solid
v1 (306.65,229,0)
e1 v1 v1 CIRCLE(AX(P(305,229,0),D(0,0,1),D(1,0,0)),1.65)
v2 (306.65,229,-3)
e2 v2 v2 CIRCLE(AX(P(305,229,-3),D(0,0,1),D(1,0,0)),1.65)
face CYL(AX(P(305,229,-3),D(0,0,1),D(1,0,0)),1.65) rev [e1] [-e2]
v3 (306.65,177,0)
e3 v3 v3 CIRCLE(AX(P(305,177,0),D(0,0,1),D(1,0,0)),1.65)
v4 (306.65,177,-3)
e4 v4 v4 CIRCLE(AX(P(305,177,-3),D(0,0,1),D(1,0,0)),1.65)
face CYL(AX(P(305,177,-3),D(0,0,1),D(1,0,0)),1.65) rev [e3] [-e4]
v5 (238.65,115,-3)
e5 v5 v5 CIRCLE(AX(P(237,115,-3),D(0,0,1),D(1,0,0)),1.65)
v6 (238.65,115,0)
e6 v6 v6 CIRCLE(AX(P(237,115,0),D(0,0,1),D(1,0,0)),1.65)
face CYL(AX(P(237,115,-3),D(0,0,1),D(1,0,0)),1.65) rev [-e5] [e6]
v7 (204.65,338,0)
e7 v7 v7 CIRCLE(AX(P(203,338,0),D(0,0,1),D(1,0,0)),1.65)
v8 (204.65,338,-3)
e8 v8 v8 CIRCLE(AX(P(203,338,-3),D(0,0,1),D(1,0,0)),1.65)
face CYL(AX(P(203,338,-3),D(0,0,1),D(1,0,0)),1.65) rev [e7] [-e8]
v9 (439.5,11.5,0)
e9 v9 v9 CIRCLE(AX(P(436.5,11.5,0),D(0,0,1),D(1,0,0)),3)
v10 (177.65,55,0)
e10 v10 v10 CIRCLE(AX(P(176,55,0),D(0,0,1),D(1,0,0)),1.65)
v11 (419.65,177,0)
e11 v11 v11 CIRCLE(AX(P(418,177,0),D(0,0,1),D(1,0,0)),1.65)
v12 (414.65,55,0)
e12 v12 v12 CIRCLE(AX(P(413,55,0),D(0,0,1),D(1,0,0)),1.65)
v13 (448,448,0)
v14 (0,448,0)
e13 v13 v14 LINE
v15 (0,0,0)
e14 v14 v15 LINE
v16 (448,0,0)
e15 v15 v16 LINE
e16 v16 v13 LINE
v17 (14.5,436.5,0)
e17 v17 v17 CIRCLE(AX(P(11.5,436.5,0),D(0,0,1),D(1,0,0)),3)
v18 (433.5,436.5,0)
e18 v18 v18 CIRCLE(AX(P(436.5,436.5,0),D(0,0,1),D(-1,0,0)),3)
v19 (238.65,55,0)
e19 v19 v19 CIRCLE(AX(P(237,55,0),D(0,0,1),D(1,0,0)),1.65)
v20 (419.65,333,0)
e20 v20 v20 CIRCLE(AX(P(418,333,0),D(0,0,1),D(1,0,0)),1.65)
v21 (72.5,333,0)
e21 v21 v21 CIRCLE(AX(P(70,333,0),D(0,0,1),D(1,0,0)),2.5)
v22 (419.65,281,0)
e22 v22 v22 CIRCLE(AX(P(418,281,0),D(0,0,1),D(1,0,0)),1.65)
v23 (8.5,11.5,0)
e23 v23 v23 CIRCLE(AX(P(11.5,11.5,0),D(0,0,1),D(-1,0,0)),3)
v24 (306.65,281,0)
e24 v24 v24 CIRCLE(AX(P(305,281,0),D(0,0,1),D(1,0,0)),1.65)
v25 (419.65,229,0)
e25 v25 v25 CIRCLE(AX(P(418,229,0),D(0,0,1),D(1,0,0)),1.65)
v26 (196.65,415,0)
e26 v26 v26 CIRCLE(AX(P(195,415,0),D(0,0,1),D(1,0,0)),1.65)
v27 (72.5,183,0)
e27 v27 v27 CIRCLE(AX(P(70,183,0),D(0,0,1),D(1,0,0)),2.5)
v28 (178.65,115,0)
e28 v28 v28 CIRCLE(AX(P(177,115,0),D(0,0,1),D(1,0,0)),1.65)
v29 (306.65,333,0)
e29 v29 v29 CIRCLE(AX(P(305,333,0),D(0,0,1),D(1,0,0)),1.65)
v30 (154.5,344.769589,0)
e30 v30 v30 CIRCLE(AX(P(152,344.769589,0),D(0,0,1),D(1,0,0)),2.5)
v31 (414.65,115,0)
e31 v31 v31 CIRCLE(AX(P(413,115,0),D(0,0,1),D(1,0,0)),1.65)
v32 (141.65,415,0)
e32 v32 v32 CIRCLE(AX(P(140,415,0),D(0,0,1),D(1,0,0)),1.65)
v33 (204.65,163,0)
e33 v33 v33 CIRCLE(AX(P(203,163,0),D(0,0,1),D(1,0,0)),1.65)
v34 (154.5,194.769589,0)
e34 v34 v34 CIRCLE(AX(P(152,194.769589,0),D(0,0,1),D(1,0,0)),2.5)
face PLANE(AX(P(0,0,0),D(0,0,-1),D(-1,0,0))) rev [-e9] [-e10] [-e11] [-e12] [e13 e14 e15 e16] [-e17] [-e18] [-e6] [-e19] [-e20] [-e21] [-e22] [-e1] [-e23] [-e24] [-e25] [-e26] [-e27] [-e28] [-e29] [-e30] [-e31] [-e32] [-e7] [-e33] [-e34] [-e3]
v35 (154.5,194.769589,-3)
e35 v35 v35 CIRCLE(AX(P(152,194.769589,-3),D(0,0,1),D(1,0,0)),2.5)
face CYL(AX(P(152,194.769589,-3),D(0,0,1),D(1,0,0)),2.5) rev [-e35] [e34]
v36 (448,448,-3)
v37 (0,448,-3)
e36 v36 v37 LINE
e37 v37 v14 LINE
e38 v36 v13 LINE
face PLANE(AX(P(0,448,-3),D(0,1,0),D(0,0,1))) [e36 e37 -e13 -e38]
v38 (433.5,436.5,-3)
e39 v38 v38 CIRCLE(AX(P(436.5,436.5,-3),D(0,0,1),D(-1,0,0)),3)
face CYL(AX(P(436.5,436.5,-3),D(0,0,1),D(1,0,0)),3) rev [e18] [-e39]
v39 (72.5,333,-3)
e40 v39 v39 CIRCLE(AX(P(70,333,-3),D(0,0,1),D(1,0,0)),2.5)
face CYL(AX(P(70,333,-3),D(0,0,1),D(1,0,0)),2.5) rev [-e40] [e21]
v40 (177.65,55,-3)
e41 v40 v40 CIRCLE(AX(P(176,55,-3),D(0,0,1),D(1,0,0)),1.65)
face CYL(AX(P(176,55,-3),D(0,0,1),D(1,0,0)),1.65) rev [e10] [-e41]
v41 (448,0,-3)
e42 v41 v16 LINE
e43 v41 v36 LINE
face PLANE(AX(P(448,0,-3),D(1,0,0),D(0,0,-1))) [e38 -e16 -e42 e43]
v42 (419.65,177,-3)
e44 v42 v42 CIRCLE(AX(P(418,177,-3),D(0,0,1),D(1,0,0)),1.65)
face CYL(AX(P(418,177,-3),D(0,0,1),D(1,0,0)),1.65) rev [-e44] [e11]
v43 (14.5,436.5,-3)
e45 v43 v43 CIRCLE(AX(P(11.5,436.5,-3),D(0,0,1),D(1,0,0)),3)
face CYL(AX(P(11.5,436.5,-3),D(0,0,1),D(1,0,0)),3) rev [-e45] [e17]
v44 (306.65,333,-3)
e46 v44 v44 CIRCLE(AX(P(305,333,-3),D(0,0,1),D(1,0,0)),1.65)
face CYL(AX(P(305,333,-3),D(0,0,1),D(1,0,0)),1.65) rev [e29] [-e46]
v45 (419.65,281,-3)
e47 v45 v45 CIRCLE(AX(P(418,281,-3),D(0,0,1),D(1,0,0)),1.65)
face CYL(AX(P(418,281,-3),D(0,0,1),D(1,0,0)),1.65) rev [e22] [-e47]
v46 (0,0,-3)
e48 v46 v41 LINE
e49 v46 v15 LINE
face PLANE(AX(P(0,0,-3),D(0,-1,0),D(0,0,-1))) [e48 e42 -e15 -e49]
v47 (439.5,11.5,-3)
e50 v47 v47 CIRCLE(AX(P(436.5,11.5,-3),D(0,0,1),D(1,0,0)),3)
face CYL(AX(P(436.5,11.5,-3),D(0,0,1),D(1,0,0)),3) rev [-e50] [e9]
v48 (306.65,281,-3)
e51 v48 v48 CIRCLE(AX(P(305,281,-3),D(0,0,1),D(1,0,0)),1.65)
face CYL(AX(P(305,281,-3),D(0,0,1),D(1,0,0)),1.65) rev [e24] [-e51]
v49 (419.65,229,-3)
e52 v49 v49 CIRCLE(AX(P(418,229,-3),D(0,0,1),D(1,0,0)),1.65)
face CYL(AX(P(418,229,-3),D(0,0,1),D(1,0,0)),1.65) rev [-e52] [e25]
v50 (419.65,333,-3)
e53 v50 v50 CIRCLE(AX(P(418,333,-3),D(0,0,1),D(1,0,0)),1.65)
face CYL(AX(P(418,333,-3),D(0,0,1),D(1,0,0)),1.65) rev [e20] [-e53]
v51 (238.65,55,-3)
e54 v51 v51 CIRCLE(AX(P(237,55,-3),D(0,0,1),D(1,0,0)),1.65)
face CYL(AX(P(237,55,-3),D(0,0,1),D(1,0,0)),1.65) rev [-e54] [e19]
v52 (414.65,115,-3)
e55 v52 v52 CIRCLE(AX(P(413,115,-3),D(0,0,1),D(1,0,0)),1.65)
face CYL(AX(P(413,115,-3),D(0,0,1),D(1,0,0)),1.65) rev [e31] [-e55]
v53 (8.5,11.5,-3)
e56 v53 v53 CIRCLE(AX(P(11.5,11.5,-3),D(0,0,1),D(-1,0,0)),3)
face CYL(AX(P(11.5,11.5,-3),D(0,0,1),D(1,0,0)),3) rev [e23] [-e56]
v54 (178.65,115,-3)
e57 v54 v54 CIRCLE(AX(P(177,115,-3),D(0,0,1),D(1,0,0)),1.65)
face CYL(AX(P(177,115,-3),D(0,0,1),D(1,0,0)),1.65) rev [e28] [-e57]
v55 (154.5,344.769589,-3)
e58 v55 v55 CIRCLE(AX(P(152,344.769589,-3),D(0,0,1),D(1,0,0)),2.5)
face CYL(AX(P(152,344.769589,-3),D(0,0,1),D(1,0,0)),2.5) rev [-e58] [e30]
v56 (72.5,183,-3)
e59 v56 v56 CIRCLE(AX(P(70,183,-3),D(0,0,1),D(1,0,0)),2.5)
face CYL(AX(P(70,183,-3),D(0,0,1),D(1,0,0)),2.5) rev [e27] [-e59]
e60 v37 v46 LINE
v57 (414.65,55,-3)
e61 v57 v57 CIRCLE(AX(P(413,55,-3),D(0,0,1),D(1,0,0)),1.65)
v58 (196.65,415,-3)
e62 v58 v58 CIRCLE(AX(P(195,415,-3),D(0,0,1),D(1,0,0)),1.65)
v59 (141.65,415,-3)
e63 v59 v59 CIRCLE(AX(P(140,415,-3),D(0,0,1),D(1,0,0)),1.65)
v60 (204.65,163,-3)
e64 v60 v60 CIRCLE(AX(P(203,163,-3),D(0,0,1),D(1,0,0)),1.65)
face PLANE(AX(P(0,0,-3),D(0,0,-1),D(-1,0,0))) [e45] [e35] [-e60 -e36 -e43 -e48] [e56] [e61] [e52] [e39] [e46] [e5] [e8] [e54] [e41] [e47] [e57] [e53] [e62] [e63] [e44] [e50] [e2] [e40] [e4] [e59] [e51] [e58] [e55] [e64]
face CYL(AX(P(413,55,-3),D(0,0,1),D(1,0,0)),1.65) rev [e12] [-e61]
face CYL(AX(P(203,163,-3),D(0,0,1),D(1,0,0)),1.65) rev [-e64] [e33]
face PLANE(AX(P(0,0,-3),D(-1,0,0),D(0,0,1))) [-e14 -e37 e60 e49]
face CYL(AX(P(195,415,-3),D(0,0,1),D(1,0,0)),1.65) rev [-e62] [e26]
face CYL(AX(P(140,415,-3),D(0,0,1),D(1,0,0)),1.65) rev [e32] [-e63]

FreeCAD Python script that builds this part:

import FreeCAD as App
import Part
import Sketcher
Q = App.Units.Quantity


def add_polygon(sketch, points):
    """Adds a closed chain of lines whose ends are joined by coincident constraints."""
    first, n = sketch.GeometryCount, len(points)
    for a, b in zip(points, points[1:] + points[:1]):
        sketch.addGeometry(Part.LineSegment(App.Vector(*a, 0), App.Vector(*b, 0)), False)
    for i in range(n):
        sketch.addConstraint(Sketcher.Constraint("Coincident", first + i, 2, first + (i + 1) % n, 1))

doc = App.newDocument("Part")
params = doc.addObject("Spreadsheet::Sheet", "Params")
for row, (alias, value) in enumerate([
    ("sketch1_diameter", "6 mm"),
    ("sketch1_diameter2", "5 mm"),
    ("sketch1_diameter3", "3.3 mm"),
    ("sketch1_width", "448 mm"),
    ("pad1_length", "3 mm"),
], start=1):
    params.set(f"A{row}", alias)
    params.set(f"B{row}", "=" + value)
    params.setAlias(f"B{row}", alias)

body = doc.addObject("PartDesign::Body", "Body")

sketch1 = body.newObject("Sketcher::SketchObject", "Sketch")
sketch1.AttachmentSupport = (doc.getObject("XY_Plane"), [""])
sketch1.MapMode = "FlatFace"
add_polygon(sketch1, [(0, 448), (0, 0), (448, 0), (448, 448)])
sketch1.addGeometry(Part.Circle(App.Vector(11.5, 11.5, 0), App.Vector(0, 0, 1), 3), False)
sketch1.addGeometry(Part.Circle(App.Vector(176, 55, 0), App.Vector(0, 0, 1), 1.65), False)
sketch1.addGeometry(Part.Circle(App.Vector(177, 115, 0), App.Vector(0, 0, 1), 1.65), False)
sketch1.addGeometry(Part.Circle(App.Vector(70, 183, 0), App.Vector(0, 0, 1), 2.5), False)
sketch1.addGeometry(Part.Circle(App.Vector(203, 163, 0), App.Vector(0, 0, 1), 1.65), False)
sketch1.addGeometry(Part.Circle(App.Vector(152, 194.769589, 0), App.Vector(0, 0, 1), 2.5), False)
sketch1.addGeometry(Part.Circle(App.Vector(237, 55, 0), App.Vector(0, 0, 1), 1.65), False)
sketch1.addGeometry(Part.Circle(App.Vector(237, 115, 0), App.Vector(0, 0, 1), 1.65), False)
sketch1.addGeometry(Part.Circle(App.Vector(436.5, 11.5, 0), App.Vector(0, 0, 1), 3), False)
sketch1.addGeometry(Part.Circle(App.Vector(413, 55, 0), App.Vector(0, 0, 1), 1.65), False)
sketch1.addGeometry(Part.Circle(App.Vector(413, 115, 0), App.Vector(0, 0, 1), 1.65), False)
sketch1.addGeometry(Part.Circle(App.Vector(305, 177, 0), App.Vector(0, 0, 1), 1.65), False)
sketch1.addGeometry(Part.Circle(App.Vector(418, 177, 0), App.Vector(0, 0, 1), 1.65), False)
sketch1.addGeometry(Part.Circle(App.Vector(70, 333, 0), App.Vector(0, 0, 1), 2.5), False)
sketch1.addGeometry(Part.Circle(App.Vector(11.5, 436.5, 0), App.Vector(0, 0, 1), 3), False)
sketch1.addGeometry(Part.Circle(App.Vector(152, 344.769589, 0), App.Vector(0, 0, 1), 2.5), False)
sketch1.addGeometry(Part.Circle(App.Vector(203, 338, 0), App.Vector(0, 0, 1), 1.65), False)
sketch1.addGeometry(Part.Circle(App.Vector(140, 415, 0), App.Vector(0, 0, 1), 1.65), False)
sketch1.addGeometry(Part.Circle(App.Vector(195, 415, 0), App.Vector(0, 0, 1), 1.65), False)
sketch1.addGeometry(Part.Circle(App.Vector(305, 229, 0), App.Vector(0, 0, 1), 1.65), False)
sketch1.addGeometry(Part.Circle(App.Vector(305, 281, 0), App.Vector(0, 0, 1), 1.65), False)
sketch1.addGeometry(Part.Circle(App.Vector(418, 229, 0), App.Vector(0, 0, 1), 1.65), False)
sketch1.addGeometry(Part.Circle(App.Vector(418, 281, 0), App.Vector(0, 0, 1), 1.65), False)
sketch1.addGeometry(Part.Circle(App.Vector(305, 333, 0), App.Vector(0, 0, 1), 1.65), False)
sketch1.addGeometry(Part.Circle(App.Vector(418, 333, 0), App.Vector(0, 0, 1), 1.65), False)
sketch1.addGeometry(Part.Circle(App.Vector(436.5, 436.5, 0), App.Vector(0, 0, 1), 3), False)
sketch1.addConstraint(Sketcher.Constraint("Vertical", 0))
sketch1.addConstraint(Sketcher.Constraint("Horizontal", 1))
sketch1.addConstraint(Sketcher.Constraint("Vertical", 2))
sketch1.addConstraint(Sketcher.Constraint("Horizontal", 3))
sketch1.addConstraint(Sketcher.Constraint("Coincident", 0, 2, -1, 1))
sketch1.addConstraint(Sketcher.Constraint("Equal", 5, 6))
sketch1.addConstraint(Sketcher.Constraint("Equal", 6, 8))
sketch1.addConstraint(Sketcher.Constraint("Equal", 7, 9))
sketch1.addConstraint(Sketcher.Constraint("Equal", 8, 10))
sketch1.addConstraint(Sketcher.Constraint("Equal", 10, 11))
sketch1.addConstraint(Sketcher.Constraint("Equal", 4, 12))
sketch1.addConstraint(Sketcher.Constraint("Equal", 11, 13))
sketch1.addConstraint(Sketcher.Constraint("Equal", 13, 14))
sketch1.addConstraint(Sketcher.Constraint("Equal", 14, 15))
sketch1.addConstraint(Sketcher.Constraint("Equal", 15, 16))
sketch1.addConstraint(Sketcher.Constraint("Equal", 9, 17))
sketch1.addConstraint(Sketcher.Constraint("Equal", 12, 18))
sketch1.addConstraint(Sketcher.Constraint("Equal", 17, 19))
sketch1.addConstraint(Sketcher.Constraint("Equal", 16, 20))
sketch1.addConstraint(Sketcher.Constraint("Equal", 20, 21))
sketch1.addConstraint(Sketcher.Constraint("Equal", 21, 22))
sketch1.addConstraint(Sketcher.Constraint("Equal", 22, 23))
sketch1.addConstraint(Sketcher.Constraint("Equal", 23, 24))
sketch1.addConstraint(Sketcher.Constraint("Equal", 24, 25))
sketch1.addConstraint(Sketcher.Constraint("Equal", 25, 26))
sketch1.addConstraint(Sketcher.Constraint("Equal", 26, 27))
sketch1.addConstraint(Sketcher.Constraint("Equal", 27, 28))
sketch1.addConstraint(Sketcher.Constraint("Equal", 18, 29))
sketch1.addConstraint(Sketcher.Constraint("Horizontal", 5, 3, 10, 3))
sketch1.addConstraint(Sketcher.Constraint("Horizontal", 6, 3, 11, 3))
sketch1.addConstraint(Sketcher.Constraint("Horizontal", 4, 3, 12, 3))
sketch1.addConstraint(Sketcher.Constraint("Horizontal", 10, 3, 13, 3))
sketch1.addConstraint(Sketcher.Constraint("Horizontal", 11, 3, 14, 3))
sketch1.addConstraint(Sketcher.Constraint("Horizontal", 15, 3, 16, 3))
sketch1.addConstraint(Sketcher.Constraint("Horizontal", 21, 3, 22, 3))
sketch1.addConstraint(Sketcher.Constraint("Horizontal", 23, 3, 25, 3))
sketch1.addConstraint(Sketcher.Constraint("Horizontal", 24, 3, 26, 3))
sketch1.addConstraint(Sketcher.Constraint("Horizontal", 17, 3, 27, 3))
sketch1.addConstraint(Sketcher.Constraint("Horizontal", 27, 3, 28, 3))
sketch1.addConstraint(Sketcher.Constraint("Horizontal", 18, 3, 29, 3))
sketch1.addConstraint(Sketcher.Constraint("Vertical", 10, 3, 11, 3))
sketch1.addConstraint(Sketcher.Constraint("Vertical", 13, 3, 14, 3))
sketch1.addConstraint(Sketcher.Constraint("Vertical", 7, 3, 17, 3))
sketch1.addConstraint(Sketcher.Constraint("Vertical", 4, 3, 18, 3))
sketch1.addConstraint(Sketcher.Constraint("Vertical", 9, 3, 19, 3))
sketch1.addConstraint(Sketcher.Constraint("Vertical", 8, 3, 20, 3))
sketch1.addConstraint(Sketcher.Constraint("Vertical", 15, 3, 23, 3))
sketch1.addConstraint(Sketcher.Constraint("Vertical", 23, 3, 24, 3))
sketch1.addConstraint(Sketcher.Constraint("Vertical", 16, 3, 25, 3))
sketch1.addConstraint(Sketcher.Constraint("Vertical", 25, 3, 26, 3))
sketch1.addConstraint(Sketcher.Constraint("Vertical", 24, 3, 27, 3))
sketch1.addConstraint(Sketcher.Constraint("Vertical", 26, 3, 28, 3))
sketch1.addConstraint(Sketcher.Constraint("Vertical", 12, 3, 29, 3))
sketch1.addConstraint(Sketcher.Constraint("Equal", 3, 0))
sketch1.addConstraint(Sketcher.Constraint("Diameter", 4, Q("6 mm")))
sketch1.addConstraint(Sketcher.Constraint("Diameter", 7, Q("5 mm")))
sketch1.addConstraint(Sketcher.Constraint("Diameter", 5, Q("3.3 mm")))
sketch1.addConstraint(Sketcher.Constraint("DistanceX", 1, 1, 1, 2, Q("448 mm")))
sketch1.addConstraint(Sketcher.Constraint("DistanceX", -1, 1, 5, 3, Q("176 mm")))
sketch1.addConstraint(Sketcher.Constraint("DistanceY", -1, 1, 5, 3, Q("55 mm")))
sketch1.addConstraint(Sketcher.Constraint("DistanceX", -1, 1, 6, 3, Q("177 mm")))
sketch1.addConstraint(Sketcher.Constraint("DistanceY", -1, 1, 6, 3, Q("115 mm")))
sketch1.addConstraint(Sketcher.Constraint("DistanceX", -1, 1, 7, 3, Q("70 mm")))
sketch1.addConstraint(Sketcher.Constraint("DistanceY", -1, 1, 7, 3, Q("183 mm")))
sketch1.addConstraint(Sketcher.Constraint("DistanceX", -1, 1, 8, 3, Q("203 mm")))
sketch1.addConstraint(Sketcher.Constraint("DistanceY", -1, 1, 8, 3, Q("163 mm")))
sketch1.addConstraint(Sketcher.Constraint("DistanceX", -1, 1, 9, 3, Q("152 mm")))
sketch1.addConstraint(Sketcher.Constraint("DistanceX", -1, 1, 10, 3, Q("237 mm")))
sketch1.addConstraint(Sketcher.Constraint("DistanceX", -1, 1, 13, 3, Q("413 mm")))
sketch1.addConstraint(Sketcher.Constraint("DistanceX", -1, 1, 15, 3, Q("305 mm")))
sketch1.addConstraint(Sketcher.Constraint("DistanceY", -1, 1, 15, 3, Q("177 mm")))
sketch1.addConstraint(Sketcher.Constraint("DistanceX", -1, 1, 16, 3, Q("418 mm")))
sketch1.addConstraint(Sketcher.Constraint("DistanceY", -1, 1, 17, 3, Q("333 mm")))
sketch1.addConstraint(Sketcher.Constraint("DistanceY", -1, 1, 20, 3, Q("338 mm")))
sketch1.addConstraint(Sketcher.Constraint("DistanceX", -1, 1, 21, 3, Q("140 mm")))
sketch1.addConstraint(Sketcher.Constraint("DistanceY", -1, 1, 21, 3, Q("415 mm")))
sketch1.addConstraint(Sketcher.Constraint("DistanceX", -1, 1, 22, 3, Q("195 mm")))
sketch1.addConstraint(Sketcher.Constraint("DistanceY", -1, 1, 23, 3, Q("229 mm")))
sketch1.addConstraint(Sketcher.Constraint("DistanceY", -1, 1, 24, 3, Q("281 mm")))
sketch1.addConstraint(Sketcher.Constraint("DistanceY", 9, 3, 19, 3, Q("150 mm")))
sketch1.addConstraint(Sketcher.Constraint("DistanceX", -1, 1, 4, 3, Q("11.5 mm")))
sketch1.addConstraint(Sketcher.Constraint("DistanceY", -1, 1, 4, 3, Q("11.5 mm")))
sketch1.addConstraint(Sketcher.Constraint("DistanceX", -1, 1, 12, 3, Q("436.5 mm")))
sketch1.addConstraint(Sketcher.Constraint("DistanceY", -1, 1, 18, 3, Q("436.5 mm")))
sketch1.addConstraint(Sketcher.Constraint("DistanceY", -1, 1, 9, 3, Q("194.769589 mm")))
sketch1.setExpression("Constraints[58]", "Params.sketch1_diameter")
sketch1.setExpression("Constraints[59]", "Params.sketch1_diameter2")
sketch1.setExpression("Constraints[60]", "Params.sketch1_diameter3")
sketch1.setExpression("Constraints[61]", "Params.sketch1_width")
pad1 = body.newObject("PartDesign::Pad", "Pad")
pad1.Profile = sketch1
pad1.setExpression("Length", "Params.pad1_length")
pad1.Reversed = True

doc.recompute()
